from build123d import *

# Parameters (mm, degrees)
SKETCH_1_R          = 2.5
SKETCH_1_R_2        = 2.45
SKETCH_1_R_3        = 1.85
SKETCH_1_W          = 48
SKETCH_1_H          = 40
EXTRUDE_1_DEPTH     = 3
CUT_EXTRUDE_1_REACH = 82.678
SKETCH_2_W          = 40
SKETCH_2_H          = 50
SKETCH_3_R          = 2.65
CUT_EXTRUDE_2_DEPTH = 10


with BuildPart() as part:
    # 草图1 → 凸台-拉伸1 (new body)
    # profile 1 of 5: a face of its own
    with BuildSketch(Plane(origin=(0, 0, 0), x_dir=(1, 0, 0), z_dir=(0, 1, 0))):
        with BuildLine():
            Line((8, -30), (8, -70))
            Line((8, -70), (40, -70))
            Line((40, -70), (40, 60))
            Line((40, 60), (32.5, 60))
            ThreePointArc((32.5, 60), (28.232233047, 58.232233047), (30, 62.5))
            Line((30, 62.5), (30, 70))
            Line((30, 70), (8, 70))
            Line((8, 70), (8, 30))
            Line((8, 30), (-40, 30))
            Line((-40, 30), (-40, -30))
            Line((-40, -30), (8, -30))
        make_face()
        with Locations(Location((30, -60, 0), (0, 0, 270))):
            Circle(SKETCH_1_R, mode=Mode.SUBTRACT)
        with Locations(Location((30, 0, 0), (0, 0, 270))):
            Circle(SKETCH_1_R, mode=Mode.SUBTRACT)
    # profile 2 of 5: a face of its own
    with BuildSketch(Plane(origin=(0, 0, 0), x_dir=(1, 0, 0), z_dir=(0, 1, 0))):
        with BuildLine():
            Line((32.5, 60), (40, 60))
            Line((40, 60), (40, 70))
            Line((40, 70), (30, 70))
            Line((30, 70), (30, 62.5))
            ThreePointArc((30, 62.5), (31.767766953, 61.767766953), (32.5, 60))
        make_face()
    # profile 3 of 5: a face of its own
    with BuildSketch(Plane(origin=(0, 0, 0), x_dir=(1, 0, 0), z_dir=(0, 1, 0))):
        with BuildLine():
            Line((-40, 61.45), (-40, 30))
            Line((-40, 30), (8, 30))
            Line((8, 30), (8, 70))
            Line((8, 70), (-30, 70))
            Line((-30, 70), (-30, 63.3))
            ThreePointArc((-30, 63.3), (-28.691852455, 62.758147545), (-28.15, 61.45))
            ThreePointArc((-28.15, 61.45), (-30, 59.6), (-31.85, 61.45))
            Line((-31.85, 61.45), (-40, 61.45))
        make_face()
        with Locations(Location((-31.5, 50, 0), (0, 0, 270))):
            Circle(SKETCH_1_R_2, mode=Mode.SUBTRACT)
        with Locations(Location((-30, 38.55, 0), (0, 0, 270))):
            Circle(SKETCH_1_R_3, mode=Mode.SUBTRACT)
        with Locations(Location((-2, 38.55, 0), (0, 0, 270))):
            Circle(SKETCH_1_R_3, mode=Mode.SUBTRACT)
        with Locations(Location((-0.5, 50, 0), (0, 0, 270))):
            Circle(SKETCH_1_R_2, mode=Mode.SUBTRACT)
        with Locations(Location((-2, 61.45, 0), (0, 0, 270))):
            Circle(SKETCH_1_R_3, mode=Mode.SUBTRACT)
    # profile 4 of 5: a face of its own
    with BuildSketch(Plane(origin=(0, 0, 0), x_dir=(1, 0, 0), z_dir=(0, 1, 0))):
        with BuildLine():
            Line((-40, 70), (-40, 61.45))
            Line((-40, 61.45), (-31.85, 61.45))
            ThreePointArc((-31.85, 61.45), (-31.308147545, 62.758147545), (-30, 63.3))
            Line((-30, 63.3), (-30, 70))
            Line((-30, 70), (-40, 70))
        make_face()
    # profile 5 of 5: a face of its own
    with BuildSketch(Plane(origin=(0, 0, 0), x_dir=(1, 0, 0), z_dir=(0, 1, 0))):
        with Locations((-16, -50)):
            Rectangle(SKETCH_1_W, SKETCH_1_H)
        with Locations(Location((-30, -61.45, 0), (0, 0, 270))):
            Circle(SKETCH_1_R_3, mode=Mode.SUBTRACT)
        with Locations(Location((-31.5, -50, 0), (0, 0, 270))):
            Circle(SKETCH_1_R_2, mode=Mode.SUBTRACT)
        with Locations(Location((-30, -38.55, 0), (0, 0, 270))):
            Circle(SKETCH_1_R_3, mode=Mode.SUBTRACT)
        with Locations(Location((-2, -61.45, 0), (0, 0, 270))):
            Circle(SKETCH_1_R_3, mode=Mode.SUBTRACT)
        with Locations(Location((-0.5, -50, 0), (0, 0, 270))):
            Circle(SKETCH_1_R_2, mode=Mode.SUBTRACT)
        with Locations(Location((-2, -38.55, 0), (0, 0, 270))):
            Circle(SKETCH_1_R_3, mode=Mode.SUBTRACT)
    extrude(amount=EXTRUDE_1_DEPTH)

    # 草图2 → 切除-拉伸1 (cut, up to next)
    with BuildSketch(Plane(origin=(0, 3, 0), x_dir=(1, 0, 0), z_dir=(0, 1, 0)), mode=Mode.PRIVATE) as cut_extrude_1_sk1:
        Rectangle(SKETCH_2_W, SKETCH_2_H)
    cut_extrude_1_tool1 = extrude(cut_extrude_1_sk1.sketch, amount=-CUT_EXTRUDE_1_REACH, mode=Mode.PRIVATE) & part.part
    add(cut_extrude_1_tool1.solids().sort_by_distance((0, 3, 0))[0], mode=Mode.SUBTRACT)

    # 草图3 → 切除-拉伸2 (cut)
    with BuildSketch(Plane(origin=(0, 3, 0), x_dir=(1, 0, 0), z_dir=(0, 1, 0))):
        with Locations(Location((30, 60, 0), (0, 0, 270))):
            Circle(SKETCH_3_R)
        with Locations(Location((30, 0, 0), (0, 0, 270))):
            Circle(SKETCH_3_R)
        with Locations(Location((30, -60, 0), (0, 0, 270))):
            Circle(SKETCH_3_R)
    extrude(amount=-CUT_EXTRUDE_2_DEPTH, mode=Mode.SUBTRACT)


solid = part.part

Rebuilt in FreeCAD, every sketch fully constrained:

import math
import FreeCAD as App
import Part
import Sketcher
from FreeCAD import Vector
Q = App.Units.Quantity


def add_polygon(sketch, points):
    """Adds a closed chain of lines whose ends are joined by coincident constraints."""
    first, n = sketch.GeometryCount, len(points)
    for a, b in zip(points, points[1:] + points[:1]):
        sketch.addGeometry(Part.LineSegment(App.Vector(*a, 0), App.Vector(*b, 0)), False)
    for i in range(n):
        sketch.addConstraint(Sketcher.Constraint("Coincident", first + i, 2, first + (i + 1) % n, 1))

doc = App.newDocument("Part")
body = doc.addObject("PartDesign::Body", "Body")

sketch1 = doc.addObject("Sketcher::SketchObject", "Sketch")
body.addObject(sketch1)
sketch1.AttachmentSupport = (doc.XZ_Plane, [""])
sketch1.MapMode = "FlatFace"
add_polygon(sketch1, [(40, 70), (40, -70), (-40, -70), (-40, 70)])
sketch1.addGeometry(Part.ArcOfCircle(Part.Circle(Vector(30, -60, 0), Vector(0, 0, 1), 2.5), math.radians(0), math.radians(270)), False)
sketch1.addGeometry(Part.ArcOfCircle(Part.Circle(Vector(30, -60, 0), Vector(0, 0, 1), 2.5), math.radians(-90), math.radians(0)), False)
sketch1.addGeometry(Part.Circle(Vector(30, 60, 0), Vector(0, 0, 1), 2.5), False)
sketch1.addGeometry(Part.Circle(Vector(30, 0, 0), Vector(0, 0, 1), 2.5), False)
sketch1.addGeometry(Part.Circle(Vector(-0.5, 50, 0), Vector(0, 0, 1), 2.45), False)
sketch1.addGeometry(Part.Circle(Vector(-2, 38.55, 0), Vector(0, 0, 1), 1.85), False)
sketch1.addGeometry(Part.Circle(Vector(-30, 61.45, 0), Vector(0, 0, 1), 1.85), False)
sketch1.addGeometry(Part.Circle(Vector(-2, 61.45, 0), Vector(0, 0, 1), 1.85), False)
sketch1.addGeometry(Part.Circle(Vector(-31.5, 50, 0), Vector(0, 0, 1), 2.45), False)
sketch1.addGeometry(Part.Circle(Vector(-30, 38.55, 0), Vector(0, 0, 1), 1.85), False)
sketch1.addGeometry(Part.Circle(Vector(-2, -61.45, 0), Vector(0, 0, 1), 1.85), False)
sketch1.addGeometry(Part.ArcOfCircle(Part.Circle(Vector(-30, -61.45, 0), Vector(0, 0, 1), 1.85), math.radians(0), math.radians(180)), False)
sketch1.addGeometry(Part.ArcOfCircle(Part.Circle(Vector(-30, -61.45, 0), Vector(0, 0, 1), 1.85), math.radians(-180), math.radians(-90)), False)
sketch1.addGeometry(Part.ArcOfCircle(Part.Circle(Vector(-30, -61.45, 0), Vector(0, 0, 1), 1.85), math.radians(-90), math.radians(0)), False)
sketch1.addGeometry(Part.Circle(Vector(-0.5, -50, 0), Vector(0, 0, 1), 2.45), False)
sketch1.addGeometry(Part.Circle(Vector(-30, -38.55, 0), Vector(0, 0, 1), 1.85), False)
sketch1.addGeometry(Part.Circle(Vector(-2, -38.55, 0), Vector(0, 0, 1), 1.85), False)
sketch1.addGeometry(Part.Circle(Vector(-31.5, -50, 0), Vector(0, 0, 1), 2.45), False)
sketch1.addConstraint(Sketcher.Constraint("Tangent", 4, 1, 5, 2))
sketch1.addConstraint(Sketcher.Constraint("Coincident", 5, 1, 4, 2))
sketch1.addConstraint(Sketcher.Constraint("Tangent", 15, 2, 16, 1))
sketch1.addConstraint(Sketcher.Constraint("Tangent", 16, 2, 17, 1))
sketch1.addConstraint(Sketcher.Constraint("Tangent", 17, 2, 15, 1))
sketch1.addConstraint(Sketcher.Constraint("Vertical", 0))
sketch1.addConstraint(Sketcher.Constraint("Horizontal", 1))
sketch1.addConstraint(Sketcher.Constraint("Vertical", 2))
sketch1.addConstraint(Sketcher.Constraint("Horizontal", 3))
sketch1.addConstraint(Sketcher.Constraint("Equal", 5, 6))
sketch1.addConstraint(Sketcher.Constraint("Equal", 6, 7))
sketch1.addConstraint(Sketcher.Constraint("Equal", 9, 10))
sketch1.addConstraint(Sketcher.Constraint("Equal", 10, 11))
sketch1.addConstraint(Sketcher.Constraint("Equal", 8, 12))
sketch1.addConstraint(Sketcher.Constraint("Equal", 11, 13))
sketch1.addConstraint(Sketcher.Constraint("Equal", 13, 14))
sketch1.addConstraint(Sketcher.Constraint("Equal", 14, 15))
sketch1.addConstraint(Sketcher.Constraint("Equal", 12, 18))
sketch1.addConstraint(Sketcher.Constraint("Equal", 17, 19))
sketch1.addConstraint(Sketcher.Constraint("Equal", 19, 20))
sketch1.addConstraint(Sketcher.Constraint("Equal", 18, 21))
sketch1.addConstraint(Sketcher.Constraint("Symmetric", 0, 2, 2, 2, -1, 1))
sketch1.addConstraint(Sketcher.Constraint("Symmetric", 4, 3, 6, 3, -1))
sketch1.addConstraint(Sketcher.Constraint("Symmetric", 11, 3, 14, 3, -1))
sketch1.addConstraint(Sketcher.Constraint("Symmetric", 10, 3, 15, 3, -1))
sketch1.addConstraint(Sketcher.Constraint("Symmetric", 8, 3, 18, 3, -1))
sketch1.addConstraint(Sketcher.Constraint("Symmetric", 13, 3, 19, 3, -1))
sketch1.addConstraint(Sketcher.Constraint("Symmetric", 9, 3, 20, 3, -1))
sketch1.addConstraint(Sketcher.Constraint("Symmetric", 12, 3, 21, 3, -1))
sketch1.addConstraint(Sketcher.Constraint("PointOnObject", 7, 3, -1))
sketch1.addConstraint(Sketcher.Constraint("Horizontal", 10, 3, 11, 3))
sketch1.addConstraint(Sketcher.Constraint("Horizontal", 8, 3, 12, 3))
sketch1.addConstraint(Sketcher.Constraint("Horizontal", 9, 3, 13, 3))
sketch1.addConstraint(Sketcher.Constraint("Horizontal", 5, 3, 4, 1))
sketch1.addConstraint(Sketcher.Constraint("Horizontal", 17, 3, 15, 2))
sketch1.addConstraint(Sketcher.Constraint("Horizontal", 15, 2, 17, 2))
sketch1.addConstraint(Sketcher.Constraint("Vertical", 6, 3, 7, 3))
sketch1.addConstraint(Sketcher.Constraint("Vertical", 9, 3, 11, 3))
sketch1.addConstraint(Sketcher.Constraint("Vertical", 10, 3, 13, 3))
sketch1.addConstraint(Sketcher.Constraint("Vertical", 7, 3, 5, 1))
sketch1.addConstraint(Sketcher.Constraint("Vertical", 19, 3, 16, 2))
sketch1.addConstraint(Sketcher.Constraint("Diameter", 6, Q("5 mm")))
sketch1.addConstraint(Sketcher.Constraint("Diameter", 8, Q("4.9 mm")))
sketch1.addConstraint(Sketcher.Constraint("Diameter", 9, Q("3.7 mm")))
sketch1.addConstraint(Sketcher.Constraint("DistanceX", 1, 2, 1, 1, Q("80 mm")))
sketch1.addConstraint(Sketcher.Constraint("DistanceY", 0, 2, 0, 1, Q("140 mm")))
sketch1.addConstraint(Sketcher.Constraint("DistanceX", -1, 1, 4, 3, Q("30 mm")))
sketch1.addConstraint(Sketcher.Constraint("DistanceY", 4, 3, -1, 1, Q("60 mm")))
sketch1.addConstraint(Sketcher.Constraint("DistanceY", -1, 1, 8, 3, Q("50 mm")))
sketch1.addConstraint(Sketcher.Constraint("DistanceX", 9, 3, -1, 1, Q("2 mm")))
sketch1.addConstraint(Sketcher.Constraint("DistanceX", 10, 3, -1, 1, Q("30 mm")))
sketch1.addConstraint(Sketcher.Constraint("DistanceX", 12, 3, 8, 3, Q("31 mm")))
sketch1.addConstraint(Sketcher.Constraint("DistanceY", 14, 3, 9, 3, Q("100 mm")))
sketch1.addConstraint(Sketcher.Constraint("DistanceX", 18, 3, 4, 1, Q("33 mm")))
sketch1.addConstraint(Sketcher.Constraint("DistanceY", 16, 2, -1, 1, Q("63.3 mm")))
pad1 = doc.addObject("PartDesign::Pad", "Pad")
body.addObject(pad1)
pad1.Profile = sketch1
pad1.Length = 3
pad1.Reversed = True

sketch2 = doc.addObject("Sketcher::SketchObject", "Sketch001")
body.addObject(sketch2)
sketch2.AttachmentSupport = (doc.XZ_Plane, [""])
sketch2.MapMode = "FlatFace"
sketch2.AttachmentOffset = App.Placement(Vector(0, 0, -3), App.Rotation())
add_polygon(sketch2, [(-20, -25), (-20, 25), (20, 25), (20, -25)])
sketch2.addConstraint(Sketcher.Constraint("Vertical", 0))
sketch2.addConstraint(Sketcher.Constraint("Horizontal", 1))
sketch2.addConstraint(Sketcher.Constraint("Vertical", 2))
sketch2.addConstraint(Sketcher.Constraint("Horizontal", 3))
sketch2.addConstraint(Sketcher.Constraint("Symmetric", 0, 2, 2, 2, -1, 1))
sketch2.addConstraint(Sketcher.Constraint("DistanceX", 1, 1, 1, 2, Q("40 mm")))
sketch2.addConstraint(Sketcher.Constraint("DistanceY", 0, 1, 0, 2, Q("50 mm")))
pocket1 = doc.addObject("PartDesign::Pocket", "Pocket")
body.addObject(pocket1)
pocket1.Profile = sketch2
pocket1.Type = "UpToFirst"
pocket1.Reversed = True

sketch3 = doc.addObject("Sketcher::SketchObject", "Sketch002")
body.addObject(sketch3)
sketch3.AttachmentSupport = (doc.XZ_Plane, [""])
sketch3.MapMode = "FlatFace"
sketch3.AttachmentOffset = App.Placement(Vector(0, 0, -3), App.Rotation())
sketch3.addGeometry(Part.Circle(Vector(30, -60, 0), Vector(0, 0, 1), 2.65), False)
sketch3.addGeometry(Part.Circle(Vector(30, 0, 0), Vector(0, 0, 1), 2.65), False)
sketch3.addGeometry(Part.Circle(Vector(30, 60, 0), Vector(0, 0, 1), 2.65), False)
sketch3.addConstraint(Sketcher.Constraint("Equal", 0, 1))
sketch3.addConstraint(Sketcher.Constraint("Equal", 1, 2))
sketch3.addConstraint(Sketcher.Constraint("Symmetric", 0, 3, 2, 3, -1))
sketch3.addConstraint(Sketcher.Constraint("PointOnObject", 1, 3, -1))
sketch3.addConstraint(Sketcher.Constraint("Vertical", 0, 3, 1, 3))
sketch3.addConstraint(Sketcher.Constraint("Diameter", 0, Q("5.3 mm")))
sketch3.addConstraint(Sketcher.Constraint("DistanceX", -1, 1, 0, 3, Q("30 mm")))
sketch3.addConstraint(Sketcher.Constraint("DistanceY", 0, 3, -1, 1, Q("60 mm")))
pocket2 = doc.addObject("PartDesign::Pocket", "Pocket001")
body.addObject(pocket2)
pocket2.Profile = sketch3
pocket2.Length = 10
pocket2.Reversed = True

doc.recompute()
